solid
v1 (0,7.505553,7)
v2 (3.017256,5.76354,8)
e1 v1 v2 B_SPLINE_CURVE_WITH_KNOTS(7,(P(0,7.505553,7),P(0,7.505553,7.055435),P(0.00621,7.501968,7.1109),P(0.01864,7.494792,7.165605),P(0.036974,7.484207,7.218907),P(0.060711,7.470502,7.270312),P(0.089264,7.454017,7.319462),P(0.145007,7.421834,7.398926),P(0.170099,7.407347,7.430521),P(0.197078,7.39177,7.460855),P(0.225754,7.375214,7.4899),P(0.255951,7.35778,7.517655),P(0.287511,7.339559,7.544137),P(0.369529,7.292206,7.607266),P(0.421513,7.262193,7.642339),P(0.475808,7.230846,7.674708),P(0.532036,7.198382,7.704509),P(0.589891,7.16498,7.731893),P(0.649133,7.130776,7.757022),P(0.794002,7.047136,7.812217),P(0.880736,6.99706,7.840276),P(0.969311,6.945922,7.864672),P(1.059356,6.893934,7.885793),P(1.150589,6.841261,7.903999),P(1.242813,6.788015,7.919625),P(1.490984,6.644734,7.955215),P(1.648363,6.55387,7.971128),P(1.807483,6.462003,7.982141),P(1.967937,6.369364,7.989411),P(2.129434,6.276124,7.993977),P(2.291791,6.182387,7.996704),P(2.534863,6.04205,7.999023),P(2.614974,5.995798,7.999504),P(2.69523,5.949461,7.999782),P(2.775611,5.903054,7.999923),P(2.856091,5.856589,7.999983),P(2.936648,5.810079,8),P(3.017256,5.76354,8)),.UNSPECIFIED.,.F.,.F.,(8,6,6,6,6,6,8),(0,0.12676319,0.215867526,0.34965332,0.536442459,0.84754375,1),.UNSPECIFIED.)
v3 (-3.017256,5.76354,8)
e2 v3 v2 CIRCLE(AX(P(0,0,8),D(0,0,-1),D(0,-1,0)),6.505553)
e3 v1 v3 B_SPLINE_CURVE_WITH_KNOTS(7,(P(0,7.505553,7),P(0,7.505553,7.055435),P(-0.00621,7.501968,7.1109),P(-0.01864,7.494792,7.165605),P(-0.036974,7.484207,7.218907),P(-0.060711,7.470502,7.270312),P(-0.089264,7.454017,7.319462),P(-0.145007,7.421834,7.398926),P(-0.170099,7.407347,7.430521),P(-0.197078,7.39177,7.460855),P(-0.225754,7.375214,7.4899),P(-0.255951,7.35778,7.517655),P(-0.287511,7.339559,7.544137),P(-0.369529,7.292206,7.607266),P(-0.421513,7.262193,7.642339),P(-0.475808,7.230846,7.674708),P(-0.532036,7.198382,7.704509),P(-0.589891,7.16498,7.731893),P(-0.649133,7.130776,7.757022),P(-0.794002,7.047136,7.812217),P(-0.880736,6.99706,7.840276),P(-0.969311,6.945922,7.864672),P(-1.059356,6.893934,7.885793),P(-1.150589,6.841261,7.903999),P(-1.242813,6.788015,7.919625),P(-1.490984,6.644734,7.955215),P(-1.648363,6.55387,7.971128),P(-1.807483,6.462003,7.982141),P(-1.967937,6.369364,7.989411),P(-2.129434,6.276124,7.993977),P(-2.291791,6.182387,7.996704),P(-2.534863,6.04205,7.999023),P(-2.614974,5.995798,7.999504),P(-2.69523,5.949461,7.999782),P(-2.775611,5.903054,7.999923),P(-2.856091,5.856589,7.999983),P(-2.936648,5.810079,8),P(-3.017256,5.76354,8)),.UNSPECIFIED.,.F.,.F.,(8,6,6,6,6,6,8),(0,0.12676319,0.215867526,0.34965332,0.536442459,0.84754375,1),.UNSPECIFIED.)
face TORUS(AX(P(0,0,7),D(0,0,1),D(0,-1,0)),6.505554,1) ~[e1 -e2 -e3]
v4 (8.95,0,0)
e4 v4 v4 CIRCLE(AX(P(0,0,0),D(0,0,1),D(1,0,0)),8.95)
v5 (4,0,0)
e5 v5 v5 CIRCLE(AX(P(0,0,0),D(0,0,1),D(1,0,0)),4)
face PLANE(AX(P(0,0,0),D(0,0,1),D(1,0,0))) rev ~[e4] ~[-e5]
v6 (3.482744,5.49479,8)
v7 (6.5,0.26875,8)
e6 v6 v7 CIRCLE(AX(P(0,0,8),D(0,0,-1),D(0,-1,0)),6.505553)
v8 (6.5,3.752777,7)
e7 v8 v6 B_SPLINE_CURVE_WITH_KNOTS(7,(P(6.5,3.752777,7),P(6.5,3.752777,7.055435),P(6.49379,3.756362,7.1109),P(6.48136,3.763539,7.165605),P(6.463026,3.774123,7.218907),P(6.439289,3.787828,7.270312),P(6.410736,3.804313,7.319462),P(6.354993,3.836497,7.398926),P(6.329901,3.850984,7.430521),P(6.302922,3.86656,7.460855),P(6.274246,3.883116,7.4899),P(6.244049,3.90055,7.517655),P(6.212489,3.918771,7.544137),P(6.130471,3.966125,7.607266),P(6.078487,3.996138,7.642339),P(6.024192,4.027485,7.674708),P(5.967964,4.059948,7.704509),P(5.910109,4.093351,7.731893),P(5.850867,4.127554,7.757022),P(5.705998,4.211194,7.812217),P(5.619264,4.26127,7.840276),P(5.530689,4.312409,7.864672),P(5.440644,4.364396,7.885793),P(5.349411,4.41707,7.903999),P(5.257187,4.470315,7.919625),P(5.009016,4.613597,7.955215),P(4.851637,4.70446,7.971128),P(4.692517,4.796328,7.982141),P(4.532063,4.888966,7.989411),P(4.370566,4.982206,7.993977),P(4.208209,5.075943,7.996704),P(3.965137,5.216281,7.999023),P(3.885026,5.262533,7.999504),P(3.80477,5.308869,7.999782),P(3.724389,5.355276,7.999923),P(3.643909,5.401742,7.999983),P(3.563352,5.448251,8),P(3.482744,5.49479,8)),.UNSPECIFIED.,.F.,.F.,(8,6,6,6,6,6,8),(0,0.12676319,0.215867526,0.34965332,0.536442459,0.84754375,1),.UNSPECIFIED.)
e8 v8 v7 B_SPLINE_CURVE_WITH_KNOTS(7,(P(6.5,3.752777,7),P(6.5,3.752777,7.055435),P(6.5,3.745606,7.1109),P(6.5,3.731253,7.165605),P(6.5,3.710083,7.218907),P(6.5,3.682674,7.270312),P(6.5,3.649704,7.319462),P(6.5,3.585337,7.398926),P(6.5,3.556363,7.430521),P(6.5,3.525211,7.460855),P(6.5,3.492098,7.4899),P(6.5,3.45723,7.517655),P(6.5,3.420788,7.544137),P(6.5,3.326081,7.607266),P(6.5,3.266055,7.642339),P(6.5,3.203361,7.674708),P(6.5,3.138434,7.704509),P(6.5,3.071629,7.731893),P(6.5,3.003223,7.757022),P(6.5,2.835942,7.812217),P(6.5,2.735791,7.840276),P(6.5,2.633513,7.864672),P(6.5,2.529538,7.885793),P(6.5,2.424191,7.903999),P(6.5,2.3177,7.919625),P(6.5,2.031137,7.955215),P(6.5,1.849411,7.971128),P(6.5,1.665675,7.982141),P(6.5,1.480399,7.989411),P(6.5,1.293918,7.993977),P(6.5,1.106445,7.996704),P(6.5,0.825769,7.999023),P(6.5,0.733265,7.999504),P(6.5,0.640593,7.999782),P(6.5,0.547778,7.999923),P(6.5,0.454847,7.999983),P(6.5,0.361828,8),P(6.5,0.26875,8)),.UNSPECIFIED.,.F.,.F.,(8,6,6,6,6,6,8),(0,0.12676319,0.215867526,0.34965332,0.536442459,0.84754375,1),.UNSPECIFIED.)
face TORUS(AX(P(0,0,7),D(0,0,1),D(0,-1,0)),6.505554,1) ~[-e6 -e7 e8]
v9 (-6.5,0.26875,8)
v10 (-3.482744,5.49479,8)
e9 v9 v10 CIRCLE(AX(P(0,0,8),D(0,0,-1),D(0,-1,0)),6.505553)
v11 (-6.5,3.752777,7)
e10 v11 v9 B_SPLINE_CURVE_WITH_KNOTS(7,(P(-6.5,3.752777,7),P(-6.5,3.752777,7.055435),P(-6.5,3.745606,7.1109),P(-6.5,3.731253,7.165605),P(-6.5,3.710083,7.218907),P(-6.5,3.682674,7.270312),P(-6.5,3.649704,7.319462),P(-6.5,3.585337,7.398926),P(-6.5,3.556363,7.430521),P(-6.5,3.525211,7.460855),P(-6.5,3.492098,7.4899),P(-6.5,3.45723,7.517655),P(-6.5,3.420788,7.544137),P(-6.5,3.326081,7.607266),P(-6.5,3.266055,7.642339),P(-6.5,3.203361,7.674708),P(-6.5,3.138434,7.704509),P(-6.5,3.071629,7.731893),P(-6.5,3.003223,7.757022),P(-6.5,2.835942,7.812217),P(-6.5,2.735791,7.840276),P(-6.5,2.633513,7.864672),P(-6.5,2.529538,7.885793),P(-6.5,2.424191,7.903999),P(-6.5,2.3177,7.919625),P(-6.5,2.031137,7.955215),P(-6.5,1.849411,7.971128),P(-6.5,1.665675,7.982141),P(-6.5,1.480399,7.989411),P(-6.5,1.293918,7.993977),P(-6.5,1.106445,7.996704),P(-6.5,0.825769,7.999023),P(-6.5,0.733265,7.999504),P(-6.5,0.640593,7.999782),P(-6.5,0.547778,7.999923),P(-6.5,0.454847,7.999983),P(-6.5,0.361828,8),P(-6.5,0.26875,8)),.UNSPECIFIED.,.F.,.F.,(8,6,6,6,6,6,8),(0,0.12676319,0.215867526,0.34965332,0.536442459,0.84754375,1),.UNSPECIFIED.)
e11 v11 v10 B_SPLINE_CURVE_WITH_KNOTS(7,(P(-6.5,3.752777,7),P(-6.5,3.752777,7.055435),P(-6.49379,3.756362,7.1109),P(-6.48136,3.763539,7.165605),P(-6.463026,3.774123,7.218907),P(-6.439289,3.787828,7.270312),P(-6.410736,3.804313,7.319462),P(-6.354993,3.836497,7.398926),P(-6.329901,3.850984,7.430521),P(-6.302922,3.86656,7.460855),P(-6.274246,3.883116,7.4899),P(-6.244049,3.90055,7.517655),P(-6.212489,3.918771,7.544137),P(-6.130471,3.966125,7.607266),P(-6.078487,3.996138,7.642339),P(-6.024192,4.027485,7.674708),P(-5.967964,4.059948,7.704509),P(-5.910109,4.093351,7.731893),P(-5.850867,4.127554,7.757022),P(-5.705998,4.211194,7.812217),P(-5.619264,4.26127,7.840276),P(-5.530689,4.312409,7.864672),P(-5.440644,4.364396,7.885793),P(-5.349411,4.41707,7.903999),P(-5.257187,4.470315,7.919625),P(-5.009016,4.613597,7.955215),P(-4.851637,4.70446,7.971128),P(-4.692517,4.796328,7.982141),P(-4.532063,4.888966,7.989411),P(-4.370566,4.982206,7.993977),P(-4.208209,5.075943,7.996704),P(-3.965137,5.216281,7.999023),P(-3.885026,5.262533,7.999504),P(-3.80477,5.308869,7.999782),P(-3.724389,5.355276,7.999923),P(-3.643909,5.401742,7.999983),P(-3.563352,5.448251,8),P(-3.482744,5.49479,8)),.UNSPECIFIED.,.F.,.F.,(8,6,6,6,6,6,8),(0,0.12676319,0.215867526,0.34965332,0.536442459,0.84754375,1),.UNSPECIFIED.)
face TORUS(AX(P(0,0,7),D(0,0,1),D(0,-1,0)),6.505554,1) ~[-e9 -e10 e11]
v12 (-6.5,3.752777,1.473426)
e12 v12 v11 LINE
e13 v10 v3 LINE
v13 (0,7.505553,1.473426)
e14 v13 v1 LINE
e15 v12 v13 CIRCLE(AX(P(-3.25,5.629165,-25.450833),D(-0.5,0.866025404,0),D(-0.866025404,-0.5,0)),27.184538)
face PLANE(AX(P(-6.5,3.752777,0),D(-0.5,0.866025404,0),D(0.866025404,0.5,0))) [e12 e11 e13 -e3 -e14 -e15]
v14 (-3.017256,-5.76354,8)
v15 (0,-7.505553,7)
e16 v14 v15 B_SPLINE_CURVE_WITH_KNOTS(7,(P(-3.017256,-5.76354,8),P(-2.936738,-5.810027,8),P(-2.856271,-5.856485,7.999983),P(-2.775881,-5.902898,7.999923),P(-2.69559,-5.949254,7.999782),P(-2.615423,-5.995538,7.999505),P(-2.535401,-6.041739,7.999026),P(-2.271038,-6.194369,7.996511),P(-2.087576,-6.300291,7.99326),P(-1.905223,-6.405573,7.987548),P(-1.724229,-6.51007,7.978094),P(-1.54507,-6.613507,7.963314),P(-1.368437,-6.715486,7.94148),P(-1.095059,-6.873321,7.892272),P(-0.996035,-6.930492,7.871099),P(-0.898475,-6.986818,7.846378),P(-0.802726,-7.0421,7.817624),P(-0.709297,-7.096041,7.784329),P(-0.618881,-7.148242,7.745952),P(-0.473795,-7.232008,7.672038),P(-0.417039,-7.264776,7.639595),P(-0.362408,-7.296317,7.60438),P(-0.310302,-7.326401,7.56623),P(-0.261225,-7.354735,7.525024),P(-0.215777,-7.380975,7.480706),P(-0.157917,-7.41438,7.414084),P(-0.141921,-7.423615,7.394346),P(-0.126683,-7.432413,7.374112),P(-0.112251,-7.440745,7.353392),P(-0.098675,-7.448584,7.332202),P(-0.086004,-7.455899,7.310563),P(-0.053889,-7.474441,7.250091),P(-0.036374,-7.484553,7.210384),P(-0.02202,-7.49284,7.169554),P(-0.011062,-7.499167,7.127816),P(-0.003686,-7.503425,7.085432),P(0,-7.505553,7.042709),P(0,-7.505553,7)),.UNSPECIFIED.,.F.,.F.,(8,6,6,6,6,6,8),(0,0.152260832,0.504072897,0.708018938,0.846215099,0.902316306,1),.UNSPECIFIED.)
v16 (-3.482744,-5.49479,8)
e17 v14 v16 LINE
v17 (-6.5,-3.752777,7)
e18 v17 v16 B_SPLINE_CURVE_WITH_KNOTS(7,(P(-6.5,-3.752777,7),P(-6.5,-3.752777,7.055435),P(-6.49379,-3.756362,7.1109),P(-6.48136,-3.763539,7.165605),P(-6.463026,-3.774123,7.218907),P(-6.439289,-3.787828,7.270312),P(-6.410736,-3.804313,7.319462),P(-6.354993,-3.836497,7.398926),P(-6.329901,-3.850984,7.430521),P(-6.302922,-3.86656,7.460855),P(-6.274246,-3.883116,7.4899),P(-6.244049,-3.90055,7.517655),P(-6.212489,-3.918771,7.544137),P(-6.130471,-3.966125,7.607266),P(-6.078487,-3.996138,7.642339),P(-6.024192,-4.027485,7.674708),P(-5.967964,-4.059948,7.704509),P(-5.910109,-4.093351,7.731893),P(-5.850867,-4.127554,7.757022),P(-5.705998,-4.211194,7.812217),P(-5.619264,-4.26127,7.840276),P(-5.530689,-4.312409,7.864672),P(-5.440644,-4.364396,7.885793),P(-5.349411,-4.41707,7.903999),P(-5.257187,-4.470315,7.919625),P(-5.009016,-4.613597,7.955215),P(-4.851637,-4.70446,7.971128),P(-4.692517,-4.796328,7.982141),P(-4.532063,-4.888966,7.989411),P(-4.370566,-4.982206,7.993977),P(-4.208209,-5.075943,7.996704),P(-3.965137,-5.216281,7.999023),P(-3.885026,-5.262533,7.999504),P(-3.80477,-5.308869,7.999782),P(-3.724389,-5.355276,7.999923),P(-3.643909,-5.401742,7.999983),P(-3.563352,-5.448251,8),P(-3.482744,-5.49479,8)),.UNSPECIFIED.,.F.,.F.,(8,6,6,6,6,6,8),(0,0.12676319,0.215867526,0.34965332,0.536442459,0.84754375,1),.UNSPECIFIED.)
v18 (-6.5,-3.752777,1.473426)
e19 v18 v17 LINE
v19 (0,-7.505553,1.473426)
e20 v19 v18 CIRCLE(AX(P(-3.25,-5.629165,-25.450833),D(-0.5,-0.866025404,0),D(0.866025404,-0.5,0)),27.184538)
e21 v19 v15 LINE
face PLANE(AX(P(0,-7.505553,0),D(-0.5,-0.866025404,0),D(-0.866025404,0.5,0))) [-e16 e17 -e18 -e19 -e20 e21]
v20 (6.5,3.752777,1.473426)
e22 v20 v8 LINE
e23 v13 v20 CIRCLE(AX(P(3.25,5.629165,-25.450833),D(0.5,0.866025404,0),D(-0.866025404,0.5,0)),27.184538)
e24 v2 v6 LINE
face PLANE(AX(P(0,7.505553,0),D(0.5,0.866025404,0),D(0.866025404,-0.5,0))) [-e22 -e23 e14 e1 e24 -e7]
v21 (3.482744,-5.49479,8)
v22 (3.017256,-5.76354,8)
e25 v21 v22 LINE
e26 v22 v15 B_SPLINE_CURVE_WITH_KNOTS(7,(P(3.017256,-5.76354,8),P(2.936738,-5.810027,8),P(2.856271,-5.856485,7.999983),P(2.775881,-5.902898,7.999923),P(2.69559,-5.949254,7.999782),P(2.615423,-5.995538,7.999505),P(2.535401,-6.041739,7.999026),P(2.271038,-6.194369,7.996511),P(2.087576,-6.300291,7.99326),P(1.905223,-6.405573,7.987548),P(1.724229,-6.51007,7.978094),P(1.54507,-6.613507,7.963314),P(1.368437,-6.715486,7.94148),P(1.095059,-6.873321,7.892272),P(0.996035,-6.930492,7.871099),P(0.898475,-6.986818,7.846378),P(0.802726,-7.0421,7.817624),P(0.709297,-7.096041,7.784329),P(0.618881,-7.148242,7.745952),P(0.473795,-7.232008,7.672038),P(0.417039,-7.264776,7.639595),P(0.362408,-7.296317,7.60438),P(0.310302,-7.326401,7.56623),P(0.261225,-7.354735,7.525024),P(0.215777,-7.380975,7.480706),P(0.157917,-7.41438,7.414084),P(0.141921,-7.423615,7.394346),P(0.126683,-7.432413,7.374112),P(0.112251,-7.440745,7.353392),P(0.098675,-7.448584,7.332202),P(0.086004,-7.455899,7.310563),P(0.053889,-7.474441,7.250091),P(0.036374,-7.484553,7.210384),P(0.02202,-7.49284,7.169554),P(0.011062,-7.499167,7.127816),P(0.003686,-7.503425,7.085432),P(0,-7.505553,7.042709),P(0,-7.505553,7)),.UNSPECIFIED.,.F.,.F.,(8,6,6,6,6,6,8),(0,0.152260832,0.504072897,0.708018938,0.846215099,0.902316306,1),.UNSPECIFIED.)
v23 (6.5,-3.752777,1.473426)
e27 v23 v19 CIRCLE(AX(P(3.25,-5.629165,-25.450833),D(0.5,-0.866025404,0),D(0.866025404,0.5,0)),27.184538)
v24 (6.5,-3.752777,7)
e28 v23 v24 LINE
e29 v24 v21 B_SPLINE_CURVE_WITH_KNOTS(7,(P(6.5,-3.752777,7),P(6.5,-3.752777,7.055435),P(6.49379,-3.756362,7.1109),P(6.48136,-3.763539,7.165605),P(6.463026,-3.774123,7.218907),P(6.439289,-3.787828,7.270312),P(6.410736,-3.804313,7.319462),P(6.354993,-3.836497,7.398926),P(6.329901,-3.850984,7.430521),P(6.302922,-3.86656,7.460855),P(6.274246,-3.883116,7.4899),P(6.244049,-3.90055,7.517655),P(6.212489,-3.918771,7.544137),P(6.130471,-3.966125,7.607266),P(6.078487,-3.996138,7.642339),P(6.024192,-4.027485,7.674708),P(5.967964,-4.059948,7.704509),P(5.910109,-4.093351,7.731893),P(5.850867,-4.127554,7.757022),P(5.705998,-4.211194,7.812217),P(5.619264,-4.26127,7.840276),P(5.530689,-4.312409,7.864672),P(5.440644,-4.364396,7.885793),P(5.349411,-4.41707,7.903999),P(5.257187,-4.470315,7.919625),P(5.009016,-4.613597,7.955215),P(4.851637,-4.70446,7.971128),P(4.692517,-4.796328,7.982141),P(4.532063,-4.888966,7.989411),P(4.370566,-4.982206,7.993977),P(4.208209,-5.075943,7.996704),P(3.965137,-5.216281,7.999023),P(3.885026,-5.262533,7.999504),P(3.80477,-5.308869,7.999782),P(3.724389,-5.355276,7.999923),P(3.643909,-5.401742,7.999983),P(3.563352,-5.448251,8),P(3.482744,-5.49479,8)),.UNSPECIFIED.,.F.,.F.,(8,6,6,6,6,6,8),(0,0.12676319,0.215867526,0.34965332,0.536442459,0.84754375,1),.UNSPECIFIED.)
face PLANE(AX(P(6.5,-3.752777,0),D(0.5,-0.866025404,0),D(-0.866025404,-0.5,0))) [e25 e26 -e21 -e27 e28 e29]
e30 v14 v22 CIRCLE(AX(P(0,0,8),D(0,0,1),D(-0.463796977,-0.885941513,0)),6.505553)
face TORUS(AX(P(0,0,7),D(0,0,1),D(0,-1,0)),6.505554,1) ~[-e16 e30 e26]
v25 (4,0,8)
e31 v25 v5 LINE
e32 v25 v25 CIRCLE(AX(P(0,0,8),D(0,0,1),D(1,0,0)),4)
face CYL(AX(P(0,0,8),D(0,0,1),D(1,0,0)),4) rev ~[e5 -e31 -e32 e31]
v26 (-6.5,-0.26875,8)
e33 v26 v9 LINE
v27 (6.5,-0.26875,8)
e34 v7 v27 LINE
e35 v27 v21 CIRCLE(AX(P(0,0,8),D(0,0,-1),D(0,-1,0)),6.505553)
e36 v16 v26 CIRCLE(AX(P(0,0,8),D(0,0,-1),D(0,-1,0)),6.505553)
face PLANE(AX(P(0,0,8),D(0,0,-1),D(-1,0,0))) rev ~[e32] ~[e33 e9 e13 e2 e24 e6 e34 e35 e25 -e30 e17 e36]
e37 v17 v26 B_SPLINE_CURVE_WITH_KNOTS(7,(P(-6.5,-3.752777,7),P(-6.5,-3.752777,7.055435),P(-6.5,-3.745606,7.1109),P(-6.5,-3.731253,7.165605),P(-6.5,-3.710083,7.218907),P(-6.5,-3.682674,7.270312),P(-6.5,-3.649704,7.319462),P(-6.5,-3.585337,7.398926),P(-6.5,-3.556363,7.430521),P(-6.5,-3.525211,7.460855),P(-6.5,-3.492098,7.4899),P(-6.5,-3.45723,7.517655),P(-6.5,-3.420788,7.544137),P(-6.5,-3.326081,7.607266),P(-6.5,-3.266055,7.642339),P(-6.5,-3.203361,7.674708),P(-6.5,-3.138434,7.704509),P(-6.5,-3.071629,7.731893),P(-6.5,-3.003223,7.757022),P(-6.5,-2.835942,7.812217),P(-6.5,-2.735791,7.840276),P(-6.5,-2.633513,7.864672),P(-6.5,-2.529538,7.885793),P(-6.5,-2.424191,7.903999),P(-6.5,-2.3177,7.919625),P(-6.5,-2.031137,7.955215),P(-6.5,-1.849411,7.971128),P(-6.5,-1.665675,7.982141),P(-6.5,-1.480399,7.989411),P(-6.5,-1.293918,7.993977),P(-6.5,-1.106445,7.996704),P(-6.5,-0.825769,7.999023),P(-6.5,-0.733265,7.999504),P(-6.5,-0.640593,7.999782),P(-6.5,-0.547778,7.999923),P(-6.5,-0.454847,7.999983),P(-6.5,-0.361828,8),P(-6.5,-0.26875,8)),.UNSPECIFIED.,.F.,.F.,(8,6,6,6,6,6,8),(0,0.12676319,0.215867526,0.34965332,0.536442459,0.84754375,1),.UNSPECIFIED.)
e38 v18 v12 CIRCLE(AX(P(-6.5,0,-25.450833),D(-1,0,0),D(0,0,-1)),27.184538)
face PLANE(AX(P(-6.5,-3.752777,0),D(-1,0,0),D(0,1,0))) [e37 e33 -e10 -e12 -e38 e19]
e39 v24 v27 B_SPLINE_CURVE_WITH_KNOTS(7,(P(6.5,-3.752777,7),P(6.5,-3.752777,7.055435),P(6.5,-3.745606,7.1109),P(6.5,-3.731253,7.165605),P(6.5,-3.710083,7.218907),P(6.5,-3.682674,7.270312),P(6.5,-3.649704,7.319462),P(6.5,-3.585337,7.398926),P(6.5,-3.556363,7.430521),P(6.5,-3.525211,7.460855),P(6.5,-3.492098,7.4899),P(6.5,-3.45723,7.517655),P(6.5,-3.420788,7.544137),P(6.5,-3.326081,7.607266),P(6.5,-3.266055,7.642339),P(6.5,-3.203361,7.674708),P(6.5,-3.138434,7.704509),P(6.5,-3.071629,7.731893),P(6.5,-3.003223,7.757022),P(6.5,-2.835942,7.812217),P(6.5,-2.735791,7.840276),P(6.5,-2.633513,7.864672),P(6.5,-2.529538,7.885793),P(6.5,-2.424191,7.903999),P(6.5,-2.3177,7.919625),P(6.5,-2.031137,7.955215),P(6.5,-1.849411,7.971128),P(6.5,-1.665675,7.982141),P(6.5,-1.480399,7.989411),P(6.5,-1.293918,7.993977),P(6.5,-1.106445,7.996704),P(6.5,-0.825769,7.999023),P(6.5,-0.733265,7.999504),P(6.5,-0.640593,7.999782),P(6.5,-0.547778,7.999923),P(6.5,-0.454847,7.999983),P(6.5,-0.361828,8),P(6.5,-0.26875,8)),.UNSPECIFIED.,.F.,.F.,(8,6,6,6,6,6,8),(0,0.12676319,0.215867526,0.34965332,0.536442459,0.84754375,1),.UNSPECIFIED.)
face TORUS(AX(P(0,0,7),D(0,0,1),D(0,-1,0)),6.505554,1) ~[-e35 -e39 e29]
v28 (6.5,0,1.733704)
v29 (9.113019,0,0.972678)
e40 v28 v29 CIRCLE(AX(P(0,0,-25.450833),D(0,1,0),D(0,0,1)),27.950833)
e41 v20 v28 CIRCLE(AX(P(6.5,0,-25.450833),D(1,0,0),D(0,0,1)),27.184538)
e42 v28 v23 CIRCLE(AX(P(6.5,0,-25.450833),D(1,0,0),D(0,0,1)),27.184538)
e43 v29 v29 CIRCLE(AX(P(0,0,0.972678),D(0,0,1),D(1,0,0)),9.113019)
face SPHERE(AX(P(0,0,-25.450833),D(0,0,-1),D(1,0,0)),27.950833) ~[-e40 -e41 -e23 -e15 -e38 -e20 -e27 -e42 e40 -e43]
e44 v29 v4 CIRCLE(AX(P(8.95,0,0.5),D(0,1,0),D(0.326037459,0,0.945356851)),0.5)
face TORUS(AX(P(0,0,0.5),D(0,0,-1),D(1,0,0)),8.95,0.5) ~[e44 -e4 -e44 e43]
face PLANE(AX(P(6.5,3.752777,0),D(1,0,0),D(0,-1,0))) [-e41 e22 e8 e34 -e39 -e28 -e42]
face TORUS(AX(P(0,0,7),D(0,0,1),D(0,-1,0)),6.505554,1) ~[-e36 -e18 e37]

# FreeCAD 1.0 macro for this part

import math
import FreeCAD as App
import Part
import Sketcher
Q = App.Units.Quantity


def add_polygon(sketch, points):
    """Adds a closed chain of lines whose ends are joined by coincident constraints."""
    first, n = sketch.GeometryCount, len(points)
    for a, b in zip(points, points[1:] + points[:1]):
        sketch.addGeometry(Part.LineSegment(App.Vector(*a, 0), App.Vector(*b, 0)), False)
    for i in range(n):
        sketch.addConstraint(Sketcher.Constraint("Coincident", first + i, 2, first + (i + 1) % n, 1))

doc = App.newDocument("Part")
body = doc.addObject("PartDesign::Body", "Body")

# Sketch on XY plane
sketch1 = body.newObject("Sketcher::SketchObject", "Sketch")
sketch1.AttachmentSupport = (doc.getObject("XY_Plane"), [""])
sketch1.MapMode = "FlatFace"
add_polygon(sketch1, [(6, 4), (0, 8), (-6, 4), (-6, -4), (0, -8), (6, -4)])  # lines 0-5
sketch1.addConstraint([
    Sketcher.Constraint("Vertical", 2),
    Sketcher.Constraint("Vertical", 5),
    Sketcher.Constraint("Symmetric", 0, 2, 3, 2, -1, 1),
    Sketcher.Constraint("Symmetric", 1, 2, 4, 2, -1, 1),
    Sketcher.Constraint("PointOnObject", 0, 2, -2),
    Sketcher.Constraint("Parallel", 0, 3),
    Sketcher.Constraint("Horizontal", 2, 2, 4, 2),
    Sketcher.Constraint("Angle", 0, Q("150 deg")),
    Sketcher.Constraint("DistanceX", 2, 2, 4, 2, Q("13 mm")),
    Sketcher.Constraint("DistanceY", 2, 2, 2, 1, Q("7.505554 mm")),
])
pad1 = body.newObject("PartDesign::Pad", "Pad")
pad1.Profile = sketch1
pad1.Length = 8

# Sketch on XZ plane
sketch2 = body.newObject("Sketcher::SketchObject", "Sketch001")
sketch2.AttachmentSupport = (doc.getObject("XZ_Plane"), [""])
sketch2.MapMode = "FlatFace"
sketch2.addGeometry([
    Part.LineSegment(App.Vector(8.9, 0, 0), App.Vector(0, 0, 0)),
    Part.LineSegment(App.Vector(0, 0, 0), App.Vector(0, 2.5, 0)),
    Part.ArcOfCircle(Part.Circle(App.Vector(0, -25.5, 0), App.Vector(0, 0, 1), 28), math.radians(70.97), math.radians(90)),
    Part.ArcOfCircle(Part.Circle(App.Vector(9, 0.5, 0), App.Vector(0, 0, 1), 0.5), math.radians(-90), math.radians(71)),
], False)
sketch2.addConstraint([
    Sketcher.Constraint("Coincident", 0, 2, 1, 1),
    Sketcher.Constraint("Coincident", 1, 2, 2, 2),
    Sketcher.Constraint("Tangent", 2, 1, 3, 2),
    Sketcher.Constraint("Tangent", 3, 1, 0, 1),
    Sketcher.Constraint("Horizontal", 0),
    Sketcher.Constraint("Vertical", 1),
    Sketcher.Constraint("Coincident", 0, 2, -1, 1),
    Sketcher.Constraint("PointOnObject", 2, 3, -2),
    Sketcher.Constraint("Radius", 3, Q("0.5 mm")),
    Sketcher.Constraint("DistanceY", 1, 1, 1, 2, Q("2.5 mm")),
    Sketcher.Constraint("DistanceX", 0, 2, 0, 1, Q("8.95 mm")),
])
revolution = body.newObject("PartDesign::Revolution", "Revolution")
revolution.Profile = sketch2
revolution.ReferenceAxis = (sketch2, ["V_Axis"])
revolution.Angle = 360

# Sketch on YZ plane
sketch3 = body.newObject("Sketcher::SketchObject", "Sketch002")
sketch3.AttachmentSupport = (doc.getObject("YZ_Plane"), [""])
sketch3.MapMode = "FlatFace"
sketch3.addGeometry([
    Part.LineSegment(App.Vector(-6.5, 8, 0), App.Vector(-7.5, 8, 0)),
    Part.LineSegment(App.Vector(-7.5, 8, 0), App.Vector(-7.5, 7, 0)),
    Part.ArcOfCircle(Part.Circle(App.Vector(-6.5, 7, 0), App.Vector(0, 0, 1), 1), math.radians(90), math.radians(180)),
], False)
sketch3.addConstraint([
    Sketcher.Constraint("Coincident", 0, 2, 1, 1),
    Sketcher.Constraint("Tangent", 1, 2, 2, 2),
    Sketcher.Constraint("Tangent", 2, 1, 0, 1),
    Sketcher.Constraint("Horizontal", 0),
    Sketcher.Constraint("Vertical", 1),
    Sketcher.Constraint("Radius", 2, Q("1 mm")),
    Sketcher.Constraint("DistanceY", -1, 1, 2, 3, Q("7 mm")),
    Sketcher.Constraint("DistanceX", 2, 3, -1, 1, Q("6.505554 mm")),
])
groove = body.newObject("PartDesign::Groove", "Groove")
groove.Profile = sketch3
groove.ReferenceAxis = (sketch3, ["V_Axis"])
groove.Angle = 360

# Sketch on XY plane
sketch4 = body.newObject("Sketcher::SketchObject", "Sketch003")
sketch4.AttachmentSupport = (doc.getObject("XY_Plane"), [""])
sketch4.MapMode = "FlatFace"
sketch4.AttachmentOffset = App.Placement(App.Vector(0, 0, 8), App.Rotation())
sketch4.addGeometry(Part.Circle(App.Vector(0, 0, 0), App.Vector(0, 0, 1), 4), False)
sketch4.addConstraint([
    Sketcher.Constraint("Coincident", 0, 3, -1, 1),
    Sketcher.Constraint("Diameter", 0, Q("8 mm")),
])
pocket1 = body.newObject("PartDesign::Pocket", "Pocket")
pocket1.Profile = sketch4
pocket1.Type = "ThroughAll"

doc.recompute()
